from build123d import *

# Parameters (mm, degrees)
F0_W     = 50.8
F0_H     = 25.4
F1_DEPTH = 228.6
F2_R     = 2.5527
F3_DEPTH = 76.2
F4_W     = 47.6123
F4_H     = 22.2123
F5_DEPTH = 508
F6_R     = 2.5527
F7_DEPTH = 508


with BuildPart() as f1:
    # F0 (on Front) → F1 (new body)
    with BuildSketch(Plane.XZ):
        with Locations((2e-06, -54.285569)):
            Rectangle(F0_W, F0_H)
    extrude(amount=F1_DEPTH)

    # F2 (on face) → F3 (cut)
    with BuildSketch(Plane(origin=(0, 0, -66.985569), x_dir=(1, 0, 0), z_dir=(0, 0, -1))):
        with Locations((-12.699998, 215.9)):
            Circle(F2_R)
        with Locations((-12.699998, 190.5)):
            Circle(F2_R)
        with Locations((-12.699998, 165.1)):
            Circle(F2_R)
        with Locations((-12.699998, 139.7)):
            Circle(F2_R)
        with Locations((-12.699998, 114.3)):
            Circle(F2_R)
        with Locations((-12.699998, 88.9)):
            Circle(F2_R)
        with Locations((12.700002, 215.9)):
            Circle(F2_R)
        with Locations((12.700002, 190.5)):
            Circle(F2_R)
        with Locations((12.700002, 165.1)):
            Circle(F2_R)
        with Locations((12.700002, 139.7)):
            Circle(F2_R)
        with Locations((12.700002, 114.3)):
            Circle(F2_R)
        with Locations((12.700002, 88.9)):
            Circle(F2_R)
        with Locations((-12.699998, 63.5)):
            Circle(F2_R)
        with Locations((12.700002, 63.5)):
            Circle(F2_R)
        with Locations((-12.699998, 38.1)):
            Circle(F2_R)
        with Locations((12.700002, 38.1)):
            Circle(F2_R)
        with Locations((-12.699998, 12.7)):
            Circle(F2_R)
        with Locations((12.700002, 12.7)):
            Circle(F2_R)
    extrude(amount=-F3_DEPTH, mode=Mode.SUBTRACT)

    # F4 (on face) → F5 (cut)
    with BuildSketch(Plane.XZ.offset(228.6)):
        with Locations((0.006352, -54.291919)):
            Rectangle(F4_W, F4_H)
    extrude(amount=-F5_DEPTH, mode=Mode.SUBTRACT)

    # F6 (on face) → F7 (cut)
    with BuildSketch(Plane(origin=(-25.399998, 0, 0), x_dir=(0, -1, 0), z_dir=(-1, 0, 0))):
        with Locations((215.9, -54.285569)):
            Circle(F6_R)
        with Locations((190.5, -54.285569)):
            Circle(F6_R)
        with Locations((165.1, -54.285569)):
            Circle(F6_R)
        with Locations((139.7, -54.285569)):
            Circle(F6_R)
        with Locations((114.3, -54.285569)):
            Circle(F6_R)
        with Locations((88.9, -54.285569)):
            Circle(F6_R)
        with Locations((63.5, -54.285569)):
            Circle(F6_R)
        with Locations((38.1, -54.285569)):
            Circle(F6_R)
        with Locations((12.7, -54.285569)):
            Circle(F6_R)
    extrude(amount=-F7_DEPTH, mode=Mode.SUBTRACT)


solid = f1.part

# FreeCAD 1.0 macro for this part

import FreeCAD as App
import Part
import Sketcher
Q = App.Units.Quantity


def add_polygon(sketch, points):
    """Adds a closed chain of lines whose ends are joined by coincident constraints."""
    first, n = sketch.GeometryCount, len(points)
    for a, b in zip(points, points[1:] + points[:1]):
        sketch.addGeometry(Part.LineSegment(App.Vector(*a, 0), App.Vector(*b, 0)), False)
    for i in range(n):
        sketch.addConstraint(Sketcher.Constraint("Coincident", first + i, 2, first + (i + 1) % n, 1))

doc = App.newDocument("Part")
body = doc.addObject("PartDesign::Body", "Body")

# Sketch on XZ plane
sketch1 = doc.addObject("Sketcher::SketchObject", "Sketch")
body.addObject(sketch1)
sketch1.AttachmentSupport = (doc.XZ_Plane, [""])
sketch1.MapMode = "FlatFace"
add_polygon(sketch1, [(-25.399998, -41.585569), (-25.399998, -66.985569), (25.400002, -66.985569), (25.400002, -41.585569)])  # lines 0-3
sketch1.addConstraint([
    Sketcher.Constraint("Vertical", 0),
    Sketcher.Constraint("Horizontal", 1),
    Sketcher.Constraint("Vertical", 2),
    Sketcher.Constraint("Horizontal", 3),
    Sketcher.Constraint("DistanceX", 1, 1, 1, 2, Q("2 in")),
    Sketcher.Constraint("DistanceY", 0, 2, 0, 1, Q("1 in")),
    Sketcher.Constraint("DistanceX", 0, 2, -1, 1, Q("0.9999999 in")),
    Sketcher.Constraint("DistanceY", 0, 2, -1, 1, Q("66.985569 mm")),
])
pad1 = doc.addObject("PartDesign::Pad", "Pad")
body.addObject(pad1)
pad1.Profile = sketch1
pad1.Length = Q("9 in")

# Sketch on XY plane
sketch2 = doc.addObject("Sketcher::SketchObject", "Sketch001")
body.addObject(sketch2)
sketch2.AttachmentSupport = (doc.XY_Plane, [""])
sketch2.MapMode = "FlatFace"
sketch2.AttachmentOffset = App.Placement(App.Vector(0, 0, -66.985569), App.Rotation())
sketch2.addGeometry([
    Part.Circle(App.Vector(-12.699998, -215.9, 0), App.Vector(0, 0, 1), 2.5527),  # 0
    Part.Circle(App.Vector(-12.699998, -190.5, 0), App.Vector(0, 0, 1), 2.5527),  # 1
    Part.Circle(App.Vector(-12.699998, -165.1, 0), App.Vector(0, 0, 1), 2.5527),  # 2
    Part.Circle(App.Vector(-12.699998, -139.7, 0), App.Vector(0, 0, 1), 2.5527),  # 3
    Part.Circle(App.Vector(-12.699998, -114.3, 0), App.Vector(0, 0, 1), 2.5527),  # 4
    Part.Circle(App.Vector(-12.699998, -88.9, 0), App.Vector(0, 0, 1), 2.5527),  # 5
    Part.Circle(App.Vector(12.700002, -215.9, 0), App.Vector(0, 0, 1), 2.5527),  # 6
    Part.Circle(App.Vector(12.700002, -190.5, 0), App.Vector(0, 0, 1), 2.5527),  # 7
    Part.Circle(App.Vector(12.700002, -165.1, 0), App.Vector(0, 0, 1), 2.5527),  # 8
    Part.Circle(App.Vector(12.700002, -139.7, 0), App.Vector(0, 0, 1), 2.5527),  # 9
    Part.Circle(App.Vector(12.700002, -114.3, 0), App.Vector(0, 0, 1), 2.5527),  # 10
    Part.Circle(App.Vector(12.700002, -88.9, 0), App.Vector(0, 0, 1), 2.5527),  # 11
    Part.Circle(App.Vector(-12.699998, -63.5, 0), App.Vector(0, 0, 1), 2.5527),  # 12
    Part.Circle(App.Vector(12.700002, -63.5, 0), App.Vector(0, 0, 1), 2.5527),  # 13
    Part.Circle(App.Vector(-12.699998, -38.1, 0), App.Vector(0, 0, 1), 2.5527),  # 14
    Part.Circle(App.Vector(12.700002, -38.1, 0), App.Vector(0, 0, 1), 2.5527),  # 15
    Part.Circle(App.Vector(-12.699998, -12.7, 0), App.Vector(0, 0, 1), 2.5527),  # 16
    Part.Circle(App.Vector(12.700002, -12.7, 0), App.Vector(0, 0, 1), 2.5527),  # 17
], False)
sketch2.addConstraint([
    Sketcher.Constraint("Equal", 0, 1),
    Sketcher.Constraint("Equal", 1, 2),
    Sketcher.Constraint("Equal", 2, 3),
    Sketcher.Constraint("Equal", 3, 4),
    Sketcher.Constraint("Equal", 4, 5),
    Sketcher.Constraint("Equal", 5, 6),
    Sketcher.Constraint("Equal", 6, 7),
    Sketcher.Constraint("Equal", 7, 8),
    Sketcher.Constraint("Equal", 8, 9),
    Sketcher.Constraint("Equal", 9, 10),
    Sketcher.Constraint("Equal", 10, 11),
    Sketcher.Constraint("Equal", 11, 12),
    Sketcher.Constraint("Equal", 12, 13),
    Sketcher.Constraint("Equal", 13, 14),
    Sketcher.Constraint("Equal", 14, 15),
    Sketcher.Constraint("Equal", 15, 16),
    Sketcher.Constraint("Equal", 16, 17),
    Sketcher.Constraint("Symmetric", 0, 3, 6, 3, -2),
    Sketcher.Constraint("Symmetric", 1, 3, 7, 3, -2),
    Sketcher.Constraint("Symmetric", 2, 3, 8, 3, -2),
    Sketcher.Constraint("Symmetric", 3, 3, 9, 3, -2),
    Sketcher.Constraint("Symmetric", 4, 3, 10, 3, -2),
    Sketcher.Constraint("Symmetric", 5, 3, 11, 3, -2),
    Sketcher.Constraint("Symmetric", 12, 3, 13, 3, -2),
    Sketcher.Constraint("Symmetric", 14, 3, 15, 3, -2),
    Sketcher.Constraint("Symmetric", 16, 3, 17, 3, -2),
    Sketcher.Constraint("Vertical", 0, 3, 1, 3),
    Sketcher.Constraint("Vertical", 1, 3, 2, 3),
    Sketcher.Constraint("Vertical", 2, 3, 3, 3),
    Sketcher.Constraint("Vertical", 3, 3, 4, 3),
    Sketcher.Constraint("Vertical", 4, 3, 5, 3),
    Sketcher.Constraint("Vertical", 5, 3, 12, 3),
    Sketcher.Constraint("Vertical", 12, 3, 14, 3),
    Sketcher.Constraint("Vertical", 14, 3, 16, 3),
    Sketcher.Constraint("Diameter", 0, Q("0.201 in")),
    Sketcher.Constraint("DistanceY", 0, 3, 1, 3, Q("1 in")),
    Sketcher.Constraint("DistanceY", 1, 3, 2, 3, Q("1 in")),
    Sketcher.Constraint("DistanceY", 2, 3, 3, 3, Q("1 in")),
    Sketcher.Constraint("DistanceY", 3, 3, 4, 3, Q("1 in")),
    Sketcher.Constraint("DistanceY", 4, 3, 5, 3, Q("1 in")),
    Sketcher.Constraint("DistanceX", 0, 3, 6, 3, Q("1 in")),
    Sketcher.Constraint("DistanceY", 5, 3, 12, 3, Q("1 in")),
    Sketcher.Constraint("DistanceY", 12, 3, 14, 3, Q("1 in")),
    Sketcher.Constraint("DistanceY", 14, 3, 16, 3, Q("1 in")),
    Sketcher.Constraint("DistanceY", 0, 3, -1, 1, Q("8.5 in")),
])
pocket1 = doc.addObject("PartDesign::Pocket", "Pocket")
body.addObject(pocket1)
pocket1.Profile = sketch2
pocket1.Length = Q("3 in")
pocket1.Reversed = True

# Sketch on XZ plane
sketch3 = doc.addObject("Sketcher::SketchObject", "Sketch002")
body.addObject(sketch3)
sketch3.AttachmentSupport = (doc.XZ_Plane, [""])
sketch3.MapMode = "FlatFace"
sketch3.AttachmentOffset = App.Placement(App.Vector(0, 0, 9 * 25.4), App.Rotation())
add_polygon(sketch3, [(-23.799798, -43.185769), (-23.799798, -65.398069), (23.812502, -65.398069), (23.812502, -43.185769)])  # lines 0-3
sketch3.addConstraint([
    Sketcher.Constraint("Vertical", 0),
    Sketcher.Constraint("Horizontal", 1),
    Sketcher.Constraint("Vertical", 2),
    Sketcher.Constraint("Horizontal", 3),
    Sketcher.Constraint("DistanceX", 1, 1, 1, 2, Q("1.8745 in")),
    Sketcher.Constraint("DistanceY", 0, 2, 0, 1, Q("0.8745 in")),
    Sketcher.Constraint("DistanceX", 0, 2, -1, 1, Q("0.9369999 in")),
    Sketcher.Constraint("DistanceY", 0, 2, -1, 1, Q("65.398069 mm")),
])
pocket2 = doc.addObject("PartDesign::Pocket", "Pocket001")
body.addObject(pocket2)
pocket2.Profile = sketch3
pocket2.Length = Q("20 in")

# Sketch on YZ plane
sketch4 = doc.addObject("Sketcher::SketchObject", "Sketch003")
body.addObject(sketch4)
sketch4.AttachmentSupport = (doc.YZ_Plane, [""])
sketch4.MapMode = "FlatFace"
sketch4.AttachmentOffset = App.Placement(App.Vector(0, 0, -0.9999999 * 25.4), App.Rotation())
sketch4.addGeometry([
    Part.Circle(App.Vector(-215.9, -54.285569, 0), App.Vector(0, 0, 1), 2.5527),  # 0
    Part.Circle(App.Vector(-190.5, -54.285569, 0), App.Vector(0, 0, 1), 2.5527),  # 1
    Part.Circle(App.Vector(-165.1, -54.285569, 0), App.Vector(0, 0, 1), 2.5527),  # 2
    Part.Circle(App.Vector(-139.7, -54.285569, 0), App.Vector(0, 0, 1), 2.5527),  # 3
    Part.Circle(App.Vector(-114.3, -54.285569, 0), App.Vector(0, 0, 1), 2.5527),  # 4
    Part.Circle(App.Vector(-88.9, -54.285569, 0), App.Vector(0, 0, 1), 2.5527),  # 5
    Part.Circle(App.Vector(-63.5, -54.285569, 0), App.Vector(0, 0, 1), 2.5527),  # 6
    Part.Circle(App.Vector(-38.1, -54.285569, 0), App.Vector(0, 0, 1), 2.5527),  # 7
    Part.Circle(App.Vector(-12.7, -54.285569, 0), App.Vector(0, 0, 1), 2.5527),  # 8
], False)
sketch4.addConstraint([
    Sketcher.Constraint("Equal", 0, 1),
    Sketcher.Constraint("Equal", 1, 2),
    Sketcher.Constraint("Equal", 2, 3),
    Sketcher.Constraint("Equal", 3, 4),
    Sketcher.Constraint("Equal", 4, 5),
    Sketcher.Constraint("Equal", 5, 6),
    Sketcher.Constraint("Equal", 6, 7),
    Sketcher.Constraint("Equal", 7, 8),
    Sketcher.Constraint("Horizontal", 0, 3, 1, 3),
    Sketcher.Constraint("Horizontal", 1, 3, 2, 3),
    Sketcher.Constraint("Horizontal", 2, 3, 3, 3),
    Sketcher.Constraint("Horizontal", 3, 3, 4, 3),
    Sketcher.Constraint("Horizontal", 4, 3, 5, 3),
    Sketcher.Constraint("Horizontal", 5, 3, 6, 3),
    Sketcher.Constraint("Horizontal", 6, 3, 7, 3),
    Sketcher.Constraint("Horizontal", 7, 3, 8, 3),
    Sketcher.Constraint("Diameter", 0, Q("0.201 in")),
    Sketcher.Constraint("DistanceX", 0, 3, 1, 3, Q("1 in")),
    Sketcher.Constraint("DistanceX", 1, 3, 2, 3, Q("1 in")),
    Sketcher.Constraint("DistanceX", 2, 3, 3, 3, Q("1 in")),
    Sketcher.Constraint("DistanceX", 3, 3, 4, 3, Q("1 in")),
    Sketcher.Constraint("DistanceX", 4, 3, 5, 3, Q("1 in")),
    Sketcher.Constraint("DistanceX", 5, 3, 6, 3, Q("1 in")),
    Sketcher.Constraint("DistanceX", 6, 3, 7, 3, Q("1 in")),
    Sketcher.Constraint("DistanceX", 7, 3, 8, 3, Q("1 in")),
    Sketcher.Constraint("DistanceX", 0, 3, -1, 1, Q("8.5 in")),
    Sketcher.Constraint("DistanceY", 0, 3, -1, 1, Q("54.285569 mm")),
])
pocket3 = doc.addObject("PartDesign::Pocket", "Pocket002")
body.addObject(pocket3)
pocket3.Profile = sketch4
pocket3.Length = Q("20 in")
pocket3.Reversed = True

doc.recompute()
